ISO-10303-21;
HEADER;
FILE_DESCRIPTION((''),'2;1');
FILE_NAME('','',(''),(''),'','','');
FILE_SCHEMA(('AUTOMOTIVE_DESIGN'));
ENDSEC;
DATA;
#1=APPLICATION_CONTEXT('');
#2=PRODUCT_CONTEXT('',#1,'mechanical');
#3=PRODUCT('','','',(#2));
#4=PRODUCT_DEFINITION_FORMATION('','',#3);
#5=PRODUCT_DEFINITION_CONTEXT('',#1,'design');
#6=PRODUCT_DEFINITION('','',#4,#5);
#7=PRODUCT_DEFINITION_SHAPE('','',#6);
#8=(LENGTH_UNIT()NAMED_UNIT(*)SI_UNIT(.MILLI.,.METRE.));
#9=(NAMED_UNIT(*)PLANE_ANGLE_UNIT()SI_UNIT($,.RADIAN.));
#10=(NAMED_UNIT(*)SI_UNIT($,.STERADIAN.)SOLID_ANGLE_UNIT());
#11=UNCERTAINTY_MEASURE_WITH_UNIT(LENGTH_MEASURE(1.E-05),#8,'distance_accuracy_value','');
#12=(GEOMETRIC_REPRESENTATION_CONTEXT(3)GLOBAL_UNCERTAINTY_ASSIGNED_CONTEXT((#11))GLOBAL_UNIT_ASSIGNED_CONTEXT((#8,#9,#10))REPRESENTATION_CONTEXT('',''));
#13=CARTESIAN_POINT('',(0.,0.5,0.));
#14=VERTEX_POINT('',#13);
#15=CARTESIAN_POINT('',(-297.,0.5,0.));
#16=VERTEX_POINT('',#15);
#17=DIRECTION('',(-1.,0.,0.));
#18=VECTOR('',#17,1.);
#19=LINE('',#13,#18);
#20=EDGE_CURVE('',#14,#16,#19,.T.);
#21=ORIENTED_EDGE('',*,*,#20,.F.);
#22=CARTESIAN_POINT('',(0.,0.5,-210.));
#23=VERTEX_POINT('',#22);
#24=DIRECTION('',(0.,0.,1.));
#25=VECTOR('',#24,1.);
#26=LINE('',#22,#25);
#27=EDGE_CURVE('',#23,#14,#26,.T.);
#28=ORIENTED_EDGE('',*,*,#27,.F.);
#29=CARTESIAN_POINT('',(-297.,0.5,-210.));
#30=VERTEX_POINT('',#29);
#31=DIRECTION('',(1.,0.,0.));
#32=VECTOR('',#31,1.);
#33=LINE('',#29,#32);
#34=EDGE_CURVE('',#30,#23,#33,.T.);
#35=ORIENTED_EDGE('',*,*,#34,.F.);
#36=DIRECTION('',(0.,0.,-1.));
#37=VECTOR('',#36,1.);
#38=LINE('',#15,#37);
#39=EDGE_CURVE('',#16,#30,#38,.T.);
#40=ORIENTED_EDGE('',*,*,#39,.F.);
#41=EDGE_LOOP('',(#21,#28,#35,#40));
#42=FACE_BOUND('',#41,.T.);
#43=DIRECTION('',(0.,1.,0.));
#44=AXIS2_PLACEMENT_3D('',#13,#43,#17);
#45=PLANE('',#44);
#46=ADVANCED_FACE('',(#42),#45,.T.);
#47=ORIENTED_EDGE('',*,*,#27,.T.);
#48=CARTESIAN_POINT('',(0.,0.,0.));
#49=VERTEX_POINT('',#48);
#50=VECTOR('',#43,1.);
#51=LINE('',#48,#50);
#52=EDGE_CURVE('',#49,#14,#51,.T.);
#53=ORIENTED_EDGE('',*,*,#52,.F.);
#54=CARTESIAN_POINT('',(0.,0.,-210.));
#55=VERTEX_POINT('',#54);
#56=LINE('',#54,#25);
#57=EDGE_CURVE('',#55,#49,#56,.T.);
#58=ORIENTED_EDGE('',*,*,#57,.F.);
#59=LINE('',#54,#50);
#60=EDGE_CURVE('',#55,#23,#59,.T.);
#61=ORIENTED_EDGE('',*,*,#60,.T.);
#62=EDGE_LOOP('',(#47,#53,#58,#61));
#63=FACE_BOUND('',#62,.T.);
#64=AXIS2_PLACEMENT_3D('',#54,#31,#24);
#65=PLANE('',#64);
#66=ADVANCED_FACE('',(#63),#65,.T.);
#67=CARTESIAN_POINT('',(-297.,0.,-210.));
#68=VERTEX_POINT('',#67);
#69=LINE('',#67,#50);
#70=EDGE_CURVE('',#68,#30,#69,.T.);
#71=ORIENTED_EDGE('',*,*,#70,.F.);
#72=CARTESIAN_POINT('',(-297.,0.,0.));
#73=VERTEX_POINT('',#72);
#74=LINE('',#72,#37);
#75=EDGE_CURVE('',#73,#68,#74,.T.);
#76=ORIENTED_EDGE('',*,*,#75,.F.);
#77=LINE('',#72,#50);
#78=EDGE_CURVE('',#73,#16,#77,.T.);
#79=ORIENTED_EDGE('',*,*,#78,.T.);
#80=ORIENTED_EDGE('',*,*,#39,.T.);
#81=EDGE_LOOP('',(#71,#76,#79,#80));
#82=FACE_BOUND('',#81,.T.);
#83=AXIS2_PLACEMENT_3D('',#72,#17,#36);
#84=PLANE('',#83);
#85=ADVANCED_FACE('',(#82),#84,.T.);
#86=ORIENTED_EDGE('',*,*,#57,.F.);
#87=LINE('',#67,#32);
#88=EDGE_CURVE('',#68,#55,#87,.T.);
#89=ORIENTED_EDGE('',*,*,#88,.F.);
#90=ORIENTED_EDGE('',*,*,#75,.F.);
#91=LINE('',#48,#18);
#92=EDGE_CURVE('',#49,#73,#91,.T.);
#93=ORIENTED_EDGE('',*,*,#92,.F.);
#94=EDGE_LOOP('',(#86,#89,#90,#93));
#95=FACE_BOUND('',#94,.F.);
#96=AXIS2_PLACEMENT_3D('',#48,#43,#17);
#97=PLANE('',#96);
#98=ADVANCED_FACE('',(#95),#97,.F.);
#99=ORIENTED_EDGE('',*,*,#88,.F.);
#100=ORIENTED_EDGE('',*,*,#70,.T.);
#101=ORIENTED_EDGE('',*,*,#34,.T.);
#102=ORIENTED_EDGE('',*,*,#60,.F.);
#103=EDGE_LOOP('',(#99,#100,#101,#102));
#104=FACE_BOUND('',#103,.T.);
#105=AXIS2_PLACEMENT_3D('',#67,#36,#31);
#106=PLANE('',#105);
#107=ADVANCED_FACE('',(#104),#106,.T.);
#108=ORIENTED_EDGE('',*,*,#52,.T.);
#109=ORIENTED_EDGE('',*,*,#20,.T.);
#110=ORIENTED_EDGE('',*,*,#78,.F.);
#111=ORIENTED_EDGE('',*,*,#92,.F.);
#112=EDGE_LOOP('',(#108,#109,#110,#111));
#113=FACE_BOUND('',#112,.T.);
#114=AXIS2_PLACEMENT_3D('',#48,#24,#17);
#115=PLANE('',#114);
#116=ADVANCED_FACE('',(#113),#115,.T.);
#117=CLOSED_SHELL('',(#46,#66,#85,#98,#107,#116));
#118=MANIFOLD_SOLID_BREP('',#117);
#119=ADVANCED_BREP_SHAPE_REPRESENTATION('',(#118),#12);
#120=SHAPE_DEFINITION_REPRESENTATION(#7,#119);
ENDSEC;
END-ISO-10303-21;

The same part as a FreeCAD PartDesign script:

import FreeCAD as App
import Part
import Sketcher

V = App.Vector

doc = App.newDocument("Part")
body = doc.addObject("PartDesign::Body", "Body")

sketch1 = doc.addObject("Sketcher::SketchObject", "Sketch")
body.addObject(sketch1)
sketch1.AttachmentSupport = (doc.XZ_Plane, [""])
sketch1.MapMode = "FlatFace"
sketch1.addGeometry(Part.LineSegment(V(-297, 0, 0), V(0, 0, 0)), False)
sketch1.addGeometry(Part.LineSegment(V(0, 0, 0), V(0, -210, 0)), False)
sketch1.addGeometry(Part.LineSegment(V(0, -210, 0), V(-297, -210, 0)), False)
sketch1.addGeometry(Part.LineSegment(V(-297, -210, 0), V(-297, 0, 0)), False)
sketch1.addConstraint(Sketcher.Constraint("Coincident", 0, 2, 1, 1))
sketch1.addConstraint(Sketcher.Constraint("Coincident", 1, 2, 2, 1))
sketch1.addConstraint(Sketcher.Constraint("Coincident", 2, 2, 3, 1))
sketch1.addConstraint(Sketcher.Constraint("Coincident", 3, 2, 0, 1))
sketch1.addConstraint(Sketcher.Constraint("Horizontal", 0))
sketch1.addConstraint(Sketcher.Constraint("Vertical", 1))
sketch1.addConstraint(Sketcher.Constraint("Horizontal", 2))
sketch1.addConstraint(Sketcher.Constraint("Vertical", 3))
sketch1.addConstraint(Sketcher.Constraint("Coincident", 0, 2, -1, 1))
sketch1.addConstraint(Sketcher.Constraint("DistanceX", 0, 1, 0, 2, 297.0))
sketch1.addConstraint(Sketcher.Constraint("DistanceY", 1, 2, 1, 1, 210.0))
pad1 = doc.addObject("PartDesign::Pad", "Pad")
body.addObject(pad1)
pad1.Profile = sketch1
pad1.Length = 0.5
pad1.Reversed = True

doc.recompute()
